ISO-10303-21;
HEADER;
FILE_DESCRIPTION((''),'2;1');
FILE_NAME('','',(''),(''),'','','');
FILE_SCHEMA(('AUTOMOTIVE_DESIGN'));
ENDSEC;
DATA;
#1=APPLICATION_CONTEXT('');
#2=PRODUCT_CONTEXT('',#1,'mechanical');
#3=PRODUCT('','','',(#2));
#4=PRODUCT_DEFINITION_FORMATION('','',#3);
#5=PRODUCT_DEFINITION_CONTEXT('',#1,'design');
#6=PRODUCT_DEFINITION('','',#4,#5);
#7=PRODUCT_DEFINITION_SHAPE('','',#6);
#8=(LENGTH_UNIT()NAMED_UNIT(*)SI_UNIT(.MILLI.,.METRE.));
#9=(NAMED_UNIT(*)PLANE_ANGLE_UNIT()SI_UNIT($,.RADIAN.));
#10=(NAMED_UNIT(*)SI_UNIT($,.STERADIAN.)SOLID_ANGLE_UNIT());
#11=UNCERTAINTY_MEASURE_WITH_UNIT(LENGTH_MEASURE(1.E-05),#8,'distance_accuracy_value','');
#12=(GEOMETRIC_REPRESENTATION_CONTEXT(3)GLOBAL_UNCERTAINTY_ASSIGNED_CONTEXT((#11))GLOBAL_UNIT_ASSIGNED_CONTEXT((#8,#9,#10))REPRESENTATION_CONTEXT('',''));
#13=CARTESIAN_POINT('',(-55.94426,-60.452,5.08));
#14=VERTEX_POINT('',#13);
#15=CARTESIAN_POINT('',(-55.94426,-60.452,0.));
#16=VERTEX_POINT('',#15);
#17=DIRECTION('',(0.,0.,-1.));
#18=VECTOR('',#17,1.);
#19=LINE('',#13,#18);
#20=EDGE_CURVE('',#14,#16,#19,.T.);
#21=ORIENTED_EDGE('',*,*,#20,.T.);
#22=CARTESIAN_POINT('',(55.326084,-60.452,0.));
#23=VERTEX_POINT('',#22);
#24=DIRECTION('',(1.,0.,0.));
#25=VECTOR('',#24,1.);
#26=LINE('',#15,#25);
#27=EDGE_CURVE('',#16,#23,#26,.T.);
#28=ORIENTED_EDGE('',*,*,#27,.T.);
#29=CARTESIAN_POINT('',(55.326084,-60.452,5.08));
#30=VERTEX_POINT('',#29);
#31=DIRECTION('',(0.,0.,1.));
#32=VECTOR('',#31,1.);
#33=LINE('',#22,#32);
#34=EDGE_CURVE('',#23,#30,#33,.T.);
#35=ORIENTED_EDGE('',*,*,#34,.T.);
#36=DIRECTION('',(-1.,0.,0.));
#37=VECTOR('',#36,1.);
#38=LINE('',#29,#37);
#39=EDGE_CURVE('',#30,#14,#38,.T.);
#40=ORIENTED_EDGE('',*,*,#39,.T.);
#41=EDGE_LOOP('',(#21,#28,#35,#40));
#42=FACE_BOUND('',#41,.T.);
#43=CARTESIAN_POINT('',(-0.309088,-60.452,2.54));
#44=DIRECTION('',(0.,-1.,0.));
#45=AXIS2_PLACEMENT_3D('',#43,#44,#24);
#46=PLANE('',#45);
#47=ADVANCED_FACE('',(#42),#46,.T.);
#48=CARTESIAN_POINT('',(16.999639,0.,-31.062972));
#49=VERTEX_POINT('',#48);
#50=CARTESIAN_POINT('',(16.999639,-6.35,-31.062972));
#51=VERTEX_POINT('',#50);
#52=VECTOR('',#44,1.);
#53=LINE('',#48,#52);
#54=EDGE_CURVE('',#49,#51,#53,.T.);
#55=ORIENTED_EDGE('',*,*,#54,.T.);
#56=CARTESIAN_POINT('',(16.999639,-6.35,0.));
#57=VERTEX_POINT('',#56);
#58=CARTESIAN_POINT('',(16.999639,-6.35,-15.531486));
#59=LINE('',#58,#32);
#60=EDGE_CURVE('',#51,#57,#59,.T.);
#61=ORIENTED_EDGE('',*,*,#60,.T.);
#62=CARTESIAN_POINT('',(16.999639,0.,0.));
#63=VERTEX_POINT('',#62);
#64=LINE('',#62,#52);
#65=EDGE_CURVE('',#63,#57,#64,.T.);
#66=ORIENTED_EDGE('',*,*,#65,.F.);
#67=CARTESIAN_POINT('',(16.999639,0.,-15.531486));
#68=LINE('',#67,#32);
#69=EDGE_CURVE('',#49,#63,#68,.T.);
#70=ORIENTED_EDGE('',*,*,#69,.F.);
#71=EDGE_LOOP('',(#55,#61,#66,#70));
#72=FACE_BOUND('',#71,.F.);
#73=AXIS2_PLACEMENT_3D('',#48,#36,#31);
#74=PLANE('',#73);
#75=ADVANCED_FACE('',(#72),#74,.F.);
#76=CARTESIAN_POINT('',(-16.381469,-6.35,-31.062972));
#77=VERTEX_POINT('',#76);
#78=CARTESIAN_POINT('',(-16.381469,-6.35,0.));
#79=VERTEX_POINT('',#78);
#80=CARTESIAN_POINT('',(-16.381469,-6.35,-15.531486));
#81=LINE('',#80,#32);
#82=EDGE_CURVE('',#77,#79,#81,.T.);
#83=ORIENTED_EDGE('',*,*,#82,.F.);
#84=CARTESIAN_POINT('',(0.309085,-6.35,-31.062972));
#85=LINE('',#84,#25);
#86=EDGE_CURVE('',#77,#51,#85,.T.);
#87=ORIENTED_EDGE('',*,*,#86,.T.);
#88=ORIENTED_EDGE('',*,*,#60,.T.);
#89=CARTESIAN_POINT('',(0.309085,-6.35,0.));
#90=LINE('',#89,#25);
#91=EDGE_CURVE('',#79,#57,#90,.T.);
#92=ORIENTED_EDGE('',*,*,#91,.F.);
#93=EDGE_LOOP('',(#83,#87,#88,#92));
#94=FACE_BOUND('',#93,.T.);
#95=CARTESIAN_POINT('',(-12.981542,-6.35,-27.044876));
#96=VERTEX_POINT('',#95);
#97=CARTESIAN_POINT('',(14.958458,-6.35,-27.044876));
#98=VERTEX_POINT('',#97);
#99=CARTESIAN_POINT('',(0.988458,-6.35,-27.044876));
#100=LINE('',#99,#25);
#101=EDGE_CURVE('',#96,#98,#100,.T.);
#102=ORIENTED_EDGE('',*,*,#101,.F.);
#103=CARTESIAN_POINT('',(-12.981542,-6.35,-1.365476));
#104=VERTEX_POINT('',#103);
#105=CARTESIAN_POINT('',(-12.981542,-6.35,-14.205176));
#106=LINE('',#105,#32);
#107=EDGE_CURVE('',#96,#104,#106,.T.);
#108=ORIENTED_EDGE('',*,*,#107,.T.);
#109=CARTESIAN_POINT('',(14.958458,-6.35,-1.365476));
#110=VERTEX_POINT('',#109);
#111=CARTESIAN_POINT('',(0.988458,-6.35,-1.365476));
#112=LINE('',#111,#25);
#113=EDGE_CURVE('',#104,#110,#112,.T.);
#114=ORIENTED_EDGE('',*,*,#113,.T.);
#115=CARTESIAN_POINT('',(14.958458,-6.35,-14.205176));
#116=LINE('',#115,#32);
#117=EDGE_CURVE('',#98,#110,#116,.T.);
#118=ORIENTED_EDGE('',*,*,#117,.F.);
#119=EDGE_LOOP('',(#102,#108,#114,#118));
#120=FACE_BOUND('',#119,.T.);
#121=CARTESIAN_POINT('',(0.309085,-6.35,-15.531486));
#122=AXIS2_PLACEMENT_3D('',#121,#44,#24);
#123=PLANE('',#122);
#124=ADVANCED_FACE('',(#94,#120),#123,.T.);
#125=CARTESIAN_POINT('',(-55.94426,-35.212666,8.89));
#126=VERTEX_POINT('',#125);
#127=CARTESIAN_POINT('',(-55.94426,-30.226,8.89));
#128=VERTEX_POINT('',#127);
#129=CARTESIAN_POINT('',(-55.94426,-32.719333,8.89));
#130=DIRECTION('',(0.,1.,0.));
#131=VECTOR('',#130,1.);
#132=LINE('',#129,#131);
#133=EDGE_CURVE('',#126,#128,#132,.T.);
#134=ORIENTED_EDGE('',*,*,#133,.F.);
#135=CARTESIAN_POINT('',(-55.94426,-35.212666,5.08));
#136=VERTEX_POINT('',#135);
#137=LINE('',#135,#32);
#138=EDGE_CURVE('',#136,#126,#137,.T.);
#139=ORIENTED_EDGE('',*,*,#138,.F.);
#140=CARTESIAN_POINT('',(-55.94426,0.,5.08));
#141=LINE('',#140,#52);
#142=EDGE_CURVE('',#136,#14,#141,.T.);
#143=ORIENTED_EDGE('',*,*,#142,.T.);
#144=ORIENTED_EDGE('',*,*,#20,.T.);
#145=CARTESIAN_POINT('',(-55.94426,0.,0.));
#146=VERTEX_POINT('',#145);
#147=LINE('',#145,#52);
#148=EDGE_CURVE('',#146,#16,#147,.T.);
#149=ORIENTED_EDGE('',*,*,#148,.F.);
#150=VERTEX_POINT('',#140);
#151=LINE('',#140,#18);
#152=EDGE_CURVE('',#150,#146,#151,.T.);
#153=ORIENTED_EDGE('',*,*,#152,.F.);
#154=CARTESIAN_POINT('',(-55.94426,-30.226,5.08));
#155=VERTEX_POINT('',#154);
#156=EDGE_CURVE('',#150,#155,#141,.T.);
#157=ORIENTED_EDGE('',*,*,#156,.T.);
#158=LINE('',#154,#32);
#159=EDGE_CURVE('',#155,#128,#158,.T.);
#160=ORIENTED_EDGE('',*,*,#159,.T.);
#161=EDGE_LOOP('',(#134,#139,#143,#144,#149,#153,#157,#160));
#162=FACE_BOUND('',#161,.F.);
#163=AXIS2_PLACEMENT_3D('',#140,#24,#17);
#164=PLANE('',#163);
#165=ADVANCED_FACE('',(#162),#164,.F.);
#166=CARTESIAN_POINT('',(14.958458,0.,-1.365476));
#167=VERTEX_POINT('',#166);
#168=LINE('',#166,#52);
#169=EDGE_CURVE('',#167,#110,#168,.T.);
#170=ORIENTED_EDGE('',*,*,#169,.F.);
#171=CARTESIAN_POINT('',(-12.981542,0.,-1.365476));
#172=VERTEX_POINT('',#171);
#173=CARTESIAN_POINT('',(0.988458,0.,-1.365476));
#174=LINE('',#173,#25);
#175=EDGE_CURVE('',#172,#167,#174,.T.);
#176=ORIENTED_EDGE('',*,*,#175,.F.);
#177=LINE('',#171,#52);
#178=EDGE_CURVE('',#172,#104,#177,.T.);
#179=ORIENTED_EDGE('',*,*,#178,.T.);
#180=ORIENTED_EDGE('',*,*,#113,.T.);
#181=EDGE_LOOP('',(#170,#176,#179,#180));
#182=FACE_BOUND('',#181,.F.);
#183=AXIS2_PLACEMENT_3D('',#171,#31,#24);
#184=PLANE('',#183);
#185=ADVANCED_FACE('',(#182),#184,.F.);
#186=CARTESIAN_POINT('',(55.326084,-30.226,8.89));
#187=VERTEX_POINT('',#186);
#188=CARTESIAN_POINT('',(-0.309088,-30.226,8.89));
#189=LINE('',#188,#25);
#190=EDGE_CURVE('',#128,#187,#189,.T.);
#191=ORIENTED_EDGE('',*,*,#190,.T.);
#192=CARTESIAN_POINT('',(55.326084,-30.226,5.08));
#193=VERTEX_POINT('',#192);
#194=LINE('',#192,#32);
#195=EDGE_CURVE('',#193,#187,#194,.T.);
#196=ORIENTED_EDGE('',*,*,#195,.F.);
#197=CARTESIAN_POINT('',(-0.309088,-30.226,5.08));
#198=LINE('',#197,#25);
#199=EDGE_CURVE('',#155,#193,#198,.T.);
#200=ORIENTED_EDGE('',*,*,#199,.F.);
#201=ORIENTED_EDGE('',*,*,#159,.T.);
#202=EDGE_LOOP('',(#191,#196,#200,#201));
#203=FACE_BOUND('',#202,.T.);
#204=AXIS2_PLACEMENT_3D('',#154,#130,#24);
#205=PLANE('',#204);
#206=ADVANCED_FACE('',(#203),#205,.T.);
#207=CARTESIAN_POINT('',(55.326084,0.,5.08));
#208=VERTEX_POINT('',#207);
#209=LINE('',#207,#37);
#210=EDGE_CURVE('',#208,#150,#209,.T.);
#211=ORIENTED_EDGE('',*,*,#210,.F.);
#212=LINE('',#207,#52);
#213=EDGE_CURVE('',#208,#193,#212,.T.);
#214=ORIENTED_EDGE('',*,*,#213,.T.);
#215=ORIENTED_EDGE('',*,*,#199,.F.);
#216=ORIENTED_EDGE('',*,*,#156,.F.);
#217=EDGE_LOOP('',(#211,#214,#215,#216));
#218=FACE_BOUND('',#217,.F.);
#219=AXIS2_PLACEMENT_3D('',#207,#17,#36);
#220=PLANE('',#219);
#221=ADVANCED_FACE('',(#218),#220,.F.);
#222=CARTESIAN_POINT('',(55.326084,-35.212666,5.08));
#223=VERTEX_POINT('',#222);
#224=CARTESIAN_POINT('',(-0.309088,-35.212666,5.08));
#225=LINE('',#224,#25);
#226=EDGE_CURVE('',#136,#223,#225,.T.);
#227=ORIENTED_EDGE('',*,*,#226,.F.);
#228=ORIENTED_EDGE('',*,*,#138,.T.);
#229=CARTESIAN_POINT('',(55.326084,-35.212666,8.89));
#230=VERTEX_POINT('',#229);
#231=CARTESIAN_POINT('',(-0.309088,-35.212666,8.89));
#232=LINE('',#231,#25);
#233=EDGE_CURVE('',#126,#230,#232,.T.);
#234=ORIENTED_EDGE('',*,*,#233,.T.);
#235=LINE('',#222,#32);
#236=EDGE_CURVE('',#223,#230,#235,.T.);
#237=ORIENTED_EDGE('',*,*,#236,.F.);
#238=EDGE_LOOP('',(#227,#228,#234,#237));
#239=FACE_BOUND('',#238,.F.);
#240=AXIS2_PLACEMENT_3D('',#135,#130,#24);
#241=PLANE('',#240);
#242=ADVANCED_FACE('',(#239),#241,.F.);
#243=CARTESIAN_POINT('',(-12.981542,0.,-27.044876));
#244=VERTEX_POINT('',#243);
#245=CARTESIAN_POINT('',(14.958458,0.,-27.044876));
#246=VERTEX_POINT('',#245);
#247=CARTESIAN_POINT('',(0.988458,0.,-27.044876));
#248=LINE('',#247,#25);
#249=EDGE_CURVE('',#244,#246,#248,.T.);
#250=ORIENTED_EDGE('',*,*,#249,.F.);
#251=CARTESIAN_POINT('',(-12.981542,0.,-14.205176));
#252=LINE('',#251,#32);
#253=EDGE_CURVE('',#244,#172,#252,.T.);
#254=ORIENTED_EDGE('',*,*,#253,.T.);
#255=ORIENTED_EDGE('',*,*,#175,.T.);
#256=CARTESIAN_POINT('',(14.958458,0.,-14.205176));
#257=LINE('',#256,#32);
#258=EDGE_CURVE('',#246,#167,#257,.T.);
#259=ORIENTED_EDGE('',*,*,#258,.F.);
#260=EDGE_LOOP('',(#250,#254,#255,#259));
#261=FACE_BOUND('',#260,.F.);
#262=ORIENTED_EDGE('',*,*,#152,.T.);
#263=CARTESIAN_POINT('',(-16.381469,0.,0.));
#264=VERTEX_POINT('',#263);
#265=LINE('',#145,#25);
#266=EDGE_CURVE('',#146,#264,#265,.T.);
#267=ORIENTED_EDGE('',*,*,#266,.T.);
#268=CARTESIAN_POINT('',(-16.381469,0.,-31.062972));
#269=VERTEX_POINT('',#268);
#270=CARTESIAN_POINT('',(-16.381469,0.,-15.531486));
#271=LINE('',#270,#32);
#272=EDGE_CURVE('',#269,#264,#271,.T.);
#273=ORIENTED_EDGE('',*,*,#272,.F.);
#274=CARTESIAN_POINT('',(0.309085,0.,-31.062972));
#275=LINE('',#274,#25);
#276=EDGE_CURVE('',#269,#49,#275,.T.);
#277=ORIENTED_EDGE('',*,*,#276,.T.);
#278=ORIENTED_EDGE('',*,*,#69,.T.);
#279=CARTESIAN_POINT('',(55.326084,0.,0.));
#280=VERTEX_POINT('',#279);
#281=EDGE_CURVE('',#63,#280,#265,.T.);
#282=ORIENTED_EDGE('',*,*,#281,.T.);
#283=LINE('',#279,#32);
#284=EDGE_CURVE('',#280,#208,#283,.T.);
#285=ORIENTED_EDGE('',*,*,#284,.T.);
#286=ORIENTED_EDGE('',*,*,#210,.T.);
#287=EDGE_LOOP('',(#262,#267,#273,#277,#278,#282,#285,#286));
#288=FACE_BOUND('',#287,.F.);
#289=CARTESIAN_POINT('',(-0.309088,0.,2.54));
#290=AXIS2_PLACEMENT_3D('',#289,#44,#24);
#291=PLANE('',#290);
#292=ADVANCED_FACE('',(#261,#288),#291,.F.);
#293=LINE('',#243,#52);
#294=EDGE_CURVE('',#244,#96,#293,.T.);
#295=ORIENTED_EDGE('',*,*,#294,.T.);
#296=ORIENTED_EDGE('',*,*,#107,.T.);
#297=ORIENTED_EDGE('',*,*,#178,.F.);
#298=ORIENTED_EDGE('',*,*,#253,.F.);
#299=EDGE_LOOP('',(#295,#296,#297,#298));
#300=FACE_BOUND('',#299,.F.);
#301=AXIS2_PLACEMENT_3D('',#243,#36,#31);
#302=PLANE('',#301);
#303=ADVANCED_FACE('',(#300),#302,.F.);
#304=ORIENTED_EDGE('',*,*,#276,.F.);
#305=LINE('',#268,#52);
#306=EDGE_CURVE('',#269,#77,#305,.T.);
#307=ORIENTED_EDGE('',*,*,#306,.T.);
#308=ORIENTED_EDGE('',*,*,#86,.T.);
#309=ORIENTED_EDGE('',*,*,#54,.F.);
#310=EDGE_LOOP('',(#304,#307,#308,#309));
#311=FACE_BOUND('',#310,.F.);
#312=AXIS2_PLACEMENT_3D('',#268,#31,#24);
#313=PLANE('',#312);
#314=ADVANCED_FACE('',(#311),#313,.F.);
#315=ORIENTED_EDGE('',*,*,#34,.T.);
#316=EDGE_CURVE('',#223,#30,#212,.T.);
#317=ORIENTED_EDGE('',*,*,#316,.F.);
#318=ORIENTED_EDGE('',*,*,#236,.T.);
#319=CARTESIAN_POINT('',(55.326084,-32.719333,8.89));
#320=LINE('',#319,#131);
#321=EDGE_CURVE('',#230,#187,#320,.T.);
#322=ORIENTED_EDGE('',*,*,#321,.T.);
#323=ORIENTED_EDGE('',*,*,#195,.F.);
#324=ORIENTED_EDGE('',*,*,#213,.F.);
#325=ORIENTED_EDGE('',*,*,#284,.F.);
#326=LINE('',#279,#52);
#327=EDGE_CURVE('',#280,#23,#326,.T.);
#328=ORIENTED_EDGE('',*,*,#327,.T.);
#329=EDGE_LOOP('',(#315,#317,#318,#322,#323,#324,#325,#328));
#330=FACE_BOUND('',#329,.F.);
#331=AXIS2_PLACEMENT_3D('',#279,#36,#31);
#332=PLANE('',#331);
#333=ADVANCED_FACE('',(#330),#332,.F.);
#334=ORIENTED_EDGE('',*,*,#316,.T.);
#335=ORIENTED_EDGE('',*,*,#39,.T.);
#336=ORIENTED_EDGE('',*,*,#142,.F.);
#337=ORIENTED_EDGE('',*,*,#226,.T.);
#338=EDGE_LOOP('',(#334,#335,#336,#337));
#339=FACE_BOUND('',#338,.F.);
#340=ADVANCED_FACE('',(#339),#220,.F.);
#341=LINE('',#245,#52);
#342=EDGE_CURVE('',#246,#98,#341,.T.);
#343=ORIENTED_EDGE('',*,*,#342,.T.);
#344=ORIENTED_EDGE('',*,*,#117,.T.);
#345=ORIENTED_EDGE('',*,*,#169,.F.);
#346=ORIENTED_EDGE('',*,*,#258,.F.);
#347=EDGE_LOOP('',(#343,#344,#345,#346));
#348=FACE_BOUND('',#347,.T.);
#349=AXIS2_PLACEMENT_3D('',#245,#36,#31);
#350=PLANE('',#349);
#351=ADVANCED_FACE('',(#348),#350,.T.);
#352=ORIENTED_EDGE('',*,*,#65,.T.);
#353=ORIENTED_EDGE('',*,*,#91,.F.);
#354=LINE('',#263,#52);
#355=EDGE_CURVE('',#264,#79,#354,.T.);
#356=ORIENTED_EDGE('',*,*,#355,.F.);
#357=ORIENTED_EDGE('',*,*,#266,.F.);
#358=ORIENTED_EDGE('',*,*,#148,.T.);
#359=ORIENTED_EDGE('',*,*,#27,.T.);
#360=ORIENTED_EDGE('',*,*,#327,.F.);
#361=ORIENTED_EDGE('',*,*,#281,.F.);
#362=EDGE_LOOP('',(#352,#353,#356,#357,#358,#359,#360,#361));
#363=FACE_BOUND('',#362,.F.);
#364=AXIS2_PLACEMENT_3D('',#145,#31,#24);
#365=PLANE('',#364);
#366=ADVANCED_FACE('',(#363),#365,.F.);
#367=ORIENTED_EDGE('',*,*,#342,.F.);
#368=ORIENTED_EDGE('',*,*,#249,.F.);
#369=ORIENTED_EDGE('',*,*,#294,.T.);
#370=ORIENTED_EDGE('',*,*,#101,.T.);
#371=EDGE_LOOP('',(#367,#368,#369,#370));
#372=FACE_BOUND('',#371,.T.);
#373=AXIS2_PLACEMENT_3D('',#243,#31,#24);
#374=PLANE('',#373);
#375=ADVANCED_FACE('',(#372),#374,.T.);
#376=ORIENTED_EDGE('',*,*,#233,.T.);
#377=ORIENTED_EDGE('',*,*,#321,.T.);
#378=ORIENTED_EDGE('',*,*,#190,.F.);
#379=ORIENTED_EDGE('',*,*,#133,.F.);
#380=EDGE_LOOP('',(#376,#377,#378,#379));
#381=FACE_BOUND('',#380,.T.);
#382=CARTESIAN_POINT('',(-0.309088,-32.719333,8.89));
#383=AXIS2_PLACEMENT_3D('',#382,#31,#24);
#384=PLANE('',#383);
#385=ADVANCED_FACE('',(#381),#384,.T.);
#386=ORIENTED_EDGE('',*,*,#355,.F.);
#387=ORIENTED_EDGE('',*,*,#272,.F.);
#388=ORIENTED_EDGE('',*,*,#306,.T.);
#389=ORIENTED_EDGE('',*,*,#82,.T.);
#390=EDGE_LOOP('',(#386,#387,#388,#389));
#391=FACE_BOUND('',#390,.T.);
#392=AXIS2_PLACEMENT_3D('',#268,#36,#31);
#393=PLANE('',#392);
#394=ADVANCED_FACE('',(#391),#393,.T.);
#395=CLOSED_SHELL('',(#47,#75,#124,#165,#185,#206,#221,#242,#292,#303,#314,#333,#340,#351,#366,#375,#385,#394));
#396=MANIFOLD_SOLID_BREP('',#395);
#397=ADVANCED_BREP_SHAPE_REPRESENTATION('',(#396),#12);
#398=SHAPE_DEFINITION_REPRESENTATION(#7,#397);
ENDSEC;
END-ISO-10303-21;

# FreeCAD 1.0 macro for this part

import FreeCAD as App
import Part
import Sketcher
from FreeCAD import Vector
Q = App.Units.Quantity


def add_polygon(sketch, points):
    """Adds a closed chain of lines whose ends are joined by coincident constraints."""
    first, n = sketch.GeometryCount, len(points)
    for a, b in zip(points, points[1:] + points[:1]):
        sketch.addGeometry(Part.LineSegment(App.Vector(*a, 0), App.Vector(*b, 0)), False)
    for i in range(n):
        sketch.addConstraint(Sketcher.Constraint("Coincident", first + i, 2, first + (i + 1) % n, 1))

doc = App.newDocument("Part")
body = doc.addObject("PartDesign::Body", "Body")

# Sketch on XZ plane
sketch1 = body.newObject("Sketcher::SketchObject", "Sketch")
sketch1.AttachmentSupport = (doc.getObject("XZ_Plane"), [""])
sketch1.MapMode = "FlatFace"
add_polygon(sketch1, [(-16, 0), (-16, -31), (17, -31), (17, 0)])  # lines 0-3
add_polygon(sketch1, [(15, -27), (-13, -27), (-13, -1), (15, -1)])  # lines 4-7
sketch1.addConstraint([
    Sketcher.Constraint("Vertical", 0),
    Sketcher.Constraint("Horizontal", 1),
    Sketcher.Constraint("Vertical", 2),
    Sketcher.Constraint("Horizontal", 3),
    Sketcher.Constraint("Horizontal", 4),
    Sketcher.Constraint("Vertical", 5),
    Sketcher.Constraint("Horizontal", 6),
    Sketcher.Constraint("Vertical", 7),
    Sketcher.Constraint("PointOnObject", 2, 2, -1),
    Sketcher.Constraint("DistanceX", 4, 2, 4, 1, Q("1.1 in")),
    Sketcher.Constraint("DistanceY", 5, 1, 5, 2, Q("1.011 in")),
    Sketcher.Constraint("DistanceY", 0, 2, 0, 1, Q("31.062972 mm")),
    Sketcher.Constraint("DistanceX", 1, 1, 1, 2, Q("33.381108 mm")),
    Sketcher.Constraint("DistanceX", 0, 2, -1, 1, Q("16.381469 mm")),
    Sketcher.Constraint("DistanceX", 4, 2, -1, 1, Q("12.981542 mm")),
    Sketcher.Constraint("DistanceY", 4, 2, -1, 1, Q("27.044876 mm")),
])
pad1 = body.newObject("PartDesign::Pad", "Pad")
pad1.Profile = sketch1
pad1.Length = Q("0.25 in")

# Sketch on XZ plane
sketch2 = body.newObject("Sketcher::SketchObject", "Sketch001")
sketch2.AttachmentSupport = (doc.getObject("XZ_Plane"), [""])
sketch2.MapMode = "FlatFace"
add_polygon(sketch2, [(-56, 5), (-56, 0), (55, 0), (55, 5)])  # lines 0-3
sketch2.addConstraint([
    Sketcher.Constraint("Vertical", 0),
    Sketcher.Constraint("Horizontal", 1),
    Sketcher.Constraint("Vertical", 2),
    Sketcher.Constraint("Horizontal", 3),
    Sketcher.Constraint("PointOnObject", 0, 2, -1),
    Sketcher.Constraint("DistanceY", 0, 2, 0, 1, Q("0.2 in")),
    Sketcher.Constraint("DistanceX", 1, 1, 1, 2, Q("111.270344 mm")),
    Sketcher.Constraint("DistanceX", 0, 2, -1, 1, Q("55.94426 mm")),
])
pad2 = body.newObject("PartDesign::Pad", "Pad001")
pad2.Profile = sketch2
pad2.Length = Q("2.38 in")

# Sketch on XY plane
sketch3 = body.newObject("Sketcher::SketchObject", "Sketch002")
sketch3.AttachmentSupport = (doc.getObject("XY_Plane"), [""])
sketch3.MapMode = "FlatFace"
sketch3.AttachmentOffset = App.Placement(Vector(0, 0, 0.2 * 25.4), App.Rotation())
add_polygon(sketch3, [(-55.9, -30.2), (-55.9, -35.2), (55.3, -35.2), (55.3, -30.2)])  # lines 0-3
sketch3.addConstraint([
    Sketcher.Constraint("Vertical", 0),
    Sketcher.Constraint("Horizontal", 1),
    Sketcher.Constraint("Vertical", 2),
    Sketcher.Constraint("Horizontal", 3),
    Sketcher.Constraint("DistanceY", 2, 2, -1, 1, Q("1.19 in")),
    Sketcher.Constraint("DistanceX", 1, 1, 1, 2, Q("111.270344 mm")),
    Sketcher.Constraint("DistanceY", 0, 2, 0, 1, Q("4.986666 mm")),
    Sketcher.Constraint("DistanceX", 0, 2, -1, 1, Q("55.94426 mm")),
])
pad3 = body.newObject("PartDesign::Pad", "Pad002")
pad3.Profile = sketch3
pad3.Length = Q("0.15 in")

doc.recompute()
